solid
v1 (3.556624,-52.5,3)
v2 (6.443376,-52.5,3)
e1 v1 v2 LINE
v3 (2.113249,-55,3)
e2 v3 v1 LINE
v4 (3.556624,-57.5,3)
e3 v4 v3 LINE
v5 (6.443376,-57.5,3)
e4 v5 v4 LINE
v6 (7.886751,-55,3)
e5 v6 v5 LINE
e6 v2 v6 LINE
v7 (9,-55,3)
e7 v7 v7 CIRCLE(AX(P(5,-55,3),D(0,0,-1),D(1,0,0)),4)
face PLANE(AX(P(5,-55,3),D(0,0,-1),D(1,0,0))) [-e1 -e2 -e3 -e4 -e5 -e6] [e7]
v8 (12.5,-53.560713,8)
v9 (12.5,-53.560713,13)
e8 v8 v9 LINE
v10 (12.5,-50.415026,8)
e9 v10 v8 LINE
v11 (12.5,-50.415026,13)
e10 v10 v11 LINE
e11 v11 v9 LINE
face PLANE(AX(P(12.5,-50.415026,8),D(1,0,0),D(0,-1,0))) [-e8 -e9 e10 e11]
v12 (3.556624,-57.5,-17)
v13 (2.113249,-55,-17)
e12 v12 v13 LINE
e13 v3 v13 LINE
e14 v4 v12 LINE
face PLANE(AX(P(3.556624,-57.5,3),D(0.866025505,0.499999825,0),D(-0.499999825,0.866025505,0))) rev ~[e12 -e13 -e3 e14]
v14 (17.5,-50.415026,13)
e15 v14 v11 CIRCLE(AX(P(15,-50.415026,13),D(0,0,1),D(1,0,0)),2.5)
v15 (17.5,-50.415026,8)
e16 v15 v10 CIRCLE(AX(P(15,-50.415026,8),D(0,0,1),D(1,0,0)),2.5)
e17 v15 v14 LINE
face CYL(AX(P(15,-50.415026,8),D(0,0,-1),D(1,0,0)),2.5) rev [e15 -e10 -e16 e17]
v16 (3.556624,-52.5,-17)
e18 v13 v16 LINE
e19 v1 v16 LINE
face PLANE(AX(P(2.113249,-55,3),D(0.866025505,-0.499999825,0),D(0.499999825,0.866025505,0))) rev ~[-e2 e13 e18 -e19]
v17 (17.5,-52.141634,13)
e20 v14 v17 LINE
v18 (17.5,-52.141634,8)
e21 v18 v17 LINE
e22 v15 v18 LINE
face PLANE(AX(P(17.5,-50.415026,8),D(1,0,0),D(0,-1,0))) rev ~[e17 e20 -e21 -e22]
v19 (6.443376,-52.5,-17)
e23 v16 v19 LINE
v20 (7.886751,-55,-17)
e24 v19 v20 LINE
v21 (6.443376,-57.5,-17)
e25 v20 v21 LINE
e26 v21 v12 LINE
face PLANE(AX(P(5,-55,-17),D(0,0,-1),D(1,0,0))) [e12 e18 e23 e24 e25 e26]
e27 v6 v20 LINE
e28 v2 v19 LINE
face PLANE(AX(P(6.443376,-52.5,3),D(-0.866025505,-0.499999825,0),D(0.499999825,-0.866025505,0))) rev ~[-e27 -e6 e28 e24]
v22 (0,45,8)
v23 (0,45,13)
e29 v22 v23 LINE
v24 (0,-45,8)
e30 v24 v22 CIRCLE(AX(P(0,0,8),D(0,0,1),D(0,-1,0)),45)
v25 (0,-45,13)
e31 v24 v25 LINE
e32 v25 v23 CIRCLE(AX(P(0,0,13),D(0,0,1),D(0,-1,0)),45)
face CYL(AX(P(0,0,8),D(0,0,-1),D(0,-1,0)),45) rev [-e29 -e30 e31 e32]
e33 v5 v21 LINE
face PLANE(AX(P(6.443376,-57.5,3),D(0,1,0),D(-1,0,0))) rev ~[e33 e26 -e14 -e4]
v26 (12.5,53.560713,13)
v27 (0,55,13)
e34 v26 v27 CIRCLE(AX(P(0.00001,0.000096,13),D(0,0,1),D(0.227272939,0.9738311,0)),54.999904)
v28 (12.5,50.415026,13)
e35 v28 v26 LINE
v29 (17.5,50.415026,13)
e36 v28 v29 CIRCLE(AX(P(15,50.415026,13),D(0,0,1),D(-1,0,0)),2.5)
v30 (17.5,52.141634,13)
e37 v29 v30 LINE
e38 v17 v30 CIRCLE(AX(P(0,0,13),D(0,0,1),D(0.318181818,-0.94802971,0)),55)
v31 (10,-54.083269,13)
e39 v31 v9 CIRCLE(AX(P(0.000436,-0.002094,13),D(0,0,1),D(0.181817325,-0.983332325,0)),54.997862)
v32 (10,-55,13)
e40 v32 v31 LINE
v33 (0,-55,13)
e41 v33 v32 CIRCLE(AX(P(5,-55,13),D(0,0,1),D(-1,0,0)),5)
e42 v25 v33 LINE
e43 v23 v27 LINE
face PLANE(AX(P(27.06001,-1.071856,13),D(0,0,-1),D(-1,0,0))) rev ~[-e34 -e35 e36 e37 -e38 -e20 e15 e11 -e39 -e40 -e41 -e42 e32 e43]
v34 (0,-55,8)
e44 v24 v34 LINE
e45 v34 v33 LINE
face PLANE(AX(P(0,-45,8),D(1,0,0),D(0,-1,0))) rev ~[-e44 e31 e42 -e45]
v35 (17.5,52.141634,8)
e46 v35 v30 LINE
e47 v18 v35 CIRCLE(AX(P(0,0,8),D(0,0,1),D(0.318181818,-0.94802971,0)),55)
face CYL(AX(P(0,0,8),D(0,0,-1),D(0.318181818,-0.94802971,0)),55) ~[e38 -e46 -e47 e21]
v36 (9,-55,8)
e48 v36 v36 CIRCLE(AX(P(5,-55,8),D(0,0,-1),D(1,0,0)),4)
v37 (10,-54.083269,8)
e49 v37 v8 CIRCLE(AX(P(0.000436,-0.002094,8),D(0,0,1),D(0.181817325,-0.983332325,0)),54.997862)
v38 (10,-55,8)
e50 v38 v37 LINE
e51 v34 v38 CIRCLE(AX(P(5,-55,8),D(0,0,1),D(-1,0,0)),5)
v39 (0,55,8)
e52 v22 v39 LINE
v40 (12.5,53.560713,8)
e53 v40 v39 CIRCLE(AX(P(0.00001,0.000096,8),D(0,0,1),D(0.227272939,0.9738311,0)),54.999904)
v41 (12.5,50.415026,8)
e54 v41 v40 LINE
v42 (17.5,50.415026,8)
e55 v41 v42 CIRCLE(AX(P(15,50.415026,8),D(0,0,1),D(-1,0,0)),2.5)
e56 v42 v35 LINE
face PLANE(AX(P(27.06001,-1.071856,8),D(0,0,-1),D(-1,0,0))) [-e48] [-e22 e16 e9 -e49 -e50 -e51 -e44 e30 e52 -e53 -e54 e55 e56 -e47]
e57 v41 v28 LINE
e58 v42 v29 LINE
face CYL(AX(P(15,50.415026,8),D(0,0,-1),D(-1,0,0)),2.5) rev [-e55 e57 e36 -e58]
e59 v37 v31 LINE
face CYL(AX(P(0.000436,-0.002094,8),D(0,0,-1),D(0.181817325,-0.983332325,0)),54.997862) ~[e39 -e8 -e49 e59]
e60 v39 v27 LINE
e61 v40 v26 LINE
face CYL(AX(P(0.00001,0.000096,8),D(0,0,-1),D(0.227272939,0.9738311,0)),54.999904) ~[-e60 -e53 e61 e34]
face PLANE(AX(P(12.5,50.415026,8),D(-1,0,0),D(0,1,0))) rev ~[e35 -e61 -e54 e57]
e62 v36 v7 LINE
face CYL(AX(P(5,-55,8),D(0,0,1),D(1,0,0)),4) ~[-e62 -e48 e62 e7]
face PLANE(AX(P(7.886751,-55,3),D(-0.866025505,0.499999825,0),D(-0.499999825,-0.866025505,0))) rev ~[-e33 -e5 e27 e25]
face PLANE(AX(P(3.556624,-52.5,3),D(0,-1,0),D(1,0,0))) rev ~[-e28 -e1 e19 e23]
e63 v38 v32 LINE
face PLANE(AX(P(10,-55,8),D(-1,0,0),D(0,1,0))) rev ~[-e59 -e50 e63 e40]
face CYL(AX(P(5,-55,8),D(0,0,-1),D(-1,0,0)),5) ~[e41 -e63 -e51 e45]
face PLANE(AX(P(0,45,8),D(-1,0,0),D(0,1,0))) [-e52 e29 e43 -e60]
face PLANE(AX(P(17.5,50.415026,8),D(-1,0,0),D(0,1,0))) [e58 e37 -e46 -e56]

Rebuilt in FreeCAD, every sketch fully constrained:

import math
import FreeCAD as App
import Part
import Sketcher
from FreeCAD import Vector
Q = App.Units.Quantity

doc = App.newDocument("Part")
params = doc.addObject("Spreadsheet::Sheet", "Params")
for row, (alias, value) in enumerate([
    ("sketch1_radius", "45 mm"),
    ("sketch1_radius2", "5 mm"),
    ("sketch1_radius3", "55 mm"),
    ("sketch1_radius4", "2.5 mm"),
    ("sketch1_height", "10 mm"),
    ("pad1_length", "5 mm"),
    ("sketch2_diameter", "8 mm"),
    ("pad2_length", "5 mm"),
    ("pad3_length", "20 mm"),
], start=1):
    params.set(f"A{row}", alias)
    params.set(f"B{row}", "=" + value)
    params.setAlias(f"B{row}", alias)

body = doc.addObject("PartDesign::Body", "Body")

sketch1 = doc.addObject("Sketcher::SketchObject", "Sketch")
body.addObject(sketch1)
sketch1.AttachmentSupport = (doc.XY_Plane, [""])
sketch1.MapMode = "FlatFace"
sketch1.addGeometry(Part.ArcOfCircle(Part.Circle(Vector(0, 0, 0), Vector(0, 0, 1), 45), math.radians(-90), math.radians(90)), False)
sketch1.addGeometry(Part.LineSegment(Vector(0, -45, 0), Vector(0, -55, 0)), False)
sketch1.addGeometry(Part.ArcOfCircle(Part.Circle(Vector(5, -55, 0), Vector(0, 0, 1), 5), math.radians(180), math.radians(360)), False)
sketch1.addGeometry(Part.LineSegment(Vector(10, -55, 0), Vector(10, -54.1, 0)), False)
sketch1.addGeometry(Part.ArcOfCircle(Part.Circle(Vector(0, 0, 0), Vector(0, 0, 1), 55), math.radians(-79.52), math.radians(-76.86)), False)
sketch1.addGeometry(Part.LineSegment(Vector(12.5, -53.6, 0), Vector(12.5, -50.4, 0)), False)
sketch1.addGeometry(Part.ArcOfCircle(Part.Circle(Vector(15, -50.4, 0), Vector(0, 0, 1), 2.5), math.radians(0), math.radians(180)), False)
sketch1.addGeometry(Part.LineSegment(Vector(17.5, -50.4, 0), Vector(17.5, -52.1, 0)), False)
sketch1.addGeometry(Part.ArcOfCircle(Part.Circle(Vector(0, 0, 0), Vector(0, 0, 1), 55), math.radians(-71), math.radians(71)), False)
sketch1.addGeometry(Part.LineSegment(Vector(17.5, 52.1, 0), Vector(17.5, 50.4, 0)), False)
sketch1.addGeometry(Part.ArcOfCircle(Part.Circle(Vector(15, 50.4, 0), Vector(0, 0, 1), 2.5), math.radians(180), math.radians(360)), False)
sketch1.addGeometry(Part.LineSegment(Vector(12.5, 50.4, 0), Vector(12.5, 53.6, 0)), False)
sketch1.addGeometry(Part.ArcOfCircle(Part.Circle(Vector(0, 0, 0), Vector(0, 0, 1), 55), math.radians(76.86), math.radians(90)), False)
sketch1.addGeometry(Part.LineSegment(Vector(0, 55, 0), Vector(0, 45, 0)), False)
sketch1.addConstraint(Sketcher.Constraint("Coincident", 0, 1, 1, 1))
sketch1.addConstraint(Sketcher.Constraint("Tangent", 1, 2, 2, 1))
sketch1.addConstraint(Sketcher.Constraint("Tangent", 2, 2, 3, 1))
sketch1.addConstraint(Sketcher.Constraint("Coincident", 3, 2, 4, 1))
sketch1.addConstraint(Sketcher.Constraint("Coincident", 4, 2, 5, 1))
sketch1.addConstraint(Sketcher.Constraint("Tangent", 5, 2, 6, 2))
sketch1.addConstraint(Sketcher.Constraint("Tangent", 6, 1, 7, 1))
sketch1.addConstraint(Sketcher.Constraint("Coincident", 7, 2, 8, 1))
sketch1.addConstraint(Sketcher.Constraint("Coincident", 8, 2, 9, 1))
sketch1.addConstraint(Sketcher.Constraint("Tangent", 9, 2, 10, 2))
sketch1.addConstraint(Sketcher.Constraint("Tangent", 10, 1, 11, 1))
sketch1.addConstraint(Sketcher.Constraint("Coincident", 11, 2, 12, 1))
sketch1.addConstraint(Sketcher.Constraint("Coincident", 12, 2, 13, 1))
sketch1.addConstraint(Sketcher.Constraint("Coincident", 13, 2, 0, 2))
sketch1.addConstraint(Sketcher.Constraint("Vertical", 1))
sketch1.addConstraint(Sketcher.Constraint("Vertical", 3))
sketch1.addConstraint(Sketcher.Constraint("Vertical", 5))
sketch1.addConstraint(Sketcher.Constraint("Vertical", 7))
sketch1.addConstraint(Sketcher.Constraint("Vertical", 9))
sketch1.addConstraint(Sketcher.Constraint("Vertical", 11))
sketch1.addConstraint(Sketcher.Constraint("Vertical", 13))
sketch1.addConstraint(Sketcher.Constraint("Coincident", 0, 3, -1, 1))
sketch1.addConstraint(Sketcher.Constraint("Coincident", 8, 3, -1, 1))
sketch1.addConstraint(Sketcher.Constraint("Equal", 6, 10))
sketch1.addConstraint(Sketcher.Constraint("Symmetric", 1, 2, 12, 2, -1, 1))
sketch1.addConstraint(Sketcher.Constraint("Symmetric", 6, 3, 10, 3, -1))
sketch1.addConstraint(Sketcher.Constraint("PointOnObject", 0, 1, -2))
sketch1.addConstraint(Sketcher.Constraint("Equal", 5, 11))
sketch1.addConstraint(Sketcher.Constraint("Radius", 0, Q("45 mm")))
sketch1.addConstraint(Sketcher.Constraint("Radius", 2, Q("5 mm")))
sketch1.addConstraint(Sketcher.Constraint("Radius", 8, Q("55 mm")))
sketch1.addConstraint(Sketcher.Constraint("Radius", 6, Q("2.5 mm")))
sketch1.addConstraint(Sketcher.Constraint("DistanceY", 1, 2, 1, 1, Q("10 mm")))
sketch1.addConstraint(Sketcher.Constraint("DistanceX", -1, 1, 6, 3, Q("15 mm")))
sketch1.addConstraint(Sketcher.Constraint("Radius", 4, Q("54.997862 mm")))
sketch1.addConstraint(Sketcher.Constraint("Radius", 12, Q("54.999904 mm")))
sketch1.addConstraint(Sketcher.Constraint("DistanceY", 3, 1, 3, 2, Q("0.916731 mm")))
sketch1.addConstraint(Sketcher.Constraint("DistanceY", 7, 2, 7, 1, Q("1.726608 mm")))
sketch1.addConstraint(Sketcher.Constraint("DistanceY", 5, 1, 5, 2, Q("3.145687 mm")))
sketch1.setExpression("Constraints[28]", "Params.sketch1_radius")
sketch1.setExpression("Constraints[29]", "Params.sketch1_radius2")
sketch1.setExpression("Constraints[30]", "Params.sketch1_radius3")
sketch1.setExpression("Constraints[31]", "Params.sketch1_radius4")
sketch1.setExpression("Constraints[32]", "Params.sketch1_height")
pad1 = doc.addObject("PartDesign::Pad", "Pad")
body.addObject(pad1)
pad1.Profile = sketch1
pad1.setExpression("Length", "Params.pad1_length")

sketch2 = doc.addObject("Sketcher::SketchObject", "Sketch001")
body.addObject(sketch2)
sketch2.AttachmentSupport = (doc.XY_Plane, [""])
sketch2.MapMode = "FlatFace"
sketch2.addGeometry(Part.Circle(Vector(5, -55, 0), Vector(0, 0, 1), 4), False)
sketch2.addConstraint(Sketcher.Constraint("Diameter", 0, Q("8 mm")))
sketch2.addConstraint(Sketcher.Constraint("DistanceX", -1, 1, 0, 3, Q("5 mm")))
sketch2.addConstraint(Sketcher.Constraint("DistanceY", 0, 3, -1, 1, Q("55 mm")))
sketch2.setExpression("Constraints[0]", "Params.sketch2_diameter")
pad2 = doc.addObject("PartDesign::Pad", "Pad001")
body.addObject(pad2)
pad2.Profile = sketch2
pad2.setExpression("Length", "Params.pad2_length")
pad2.Reversed = True

sketch3 = doc.addObject("Sketcher::SketchObject", "Sketch002")
body.addObject(sketch3)
sketch3.AttachmentSupport = (doc.XY_Plane, [""])
sketch3.MapMode = "FlatFace"
sketch3.AttachmentOffset = App.Placement(Vector(0, 0, -5), App.Rotation())
sketch3.addGeometry(Part.LineSegment(Vector(2.1, -55, 0), Vector(3.6, -52.5, 0)), False)
sketch3.addGeometry(Part.LineSegment(Vector(3.6, -52.5, 0), Vector(6.4, -52.5, 0)), False)
sketch3.addGeometry(Part.LineSegment(Vector(6.4, -52.5, 0), Vector(7.9, -55, 0)), False)
sketch3.addGeometry(Part.LineSegment(Vector(7.9, -55, 0), Vector(6.4, -57.5, 0)), False)
sketch3.addGeometry(Part.LineSegment(Vector(6.4, -57.5, 0), Vector(3.6, -57.5, 0)), False)
sketch3.addGeometry(Part.LineSegment(Vector(3.6, -57.5, 0), Vector(2.1, -55, 0)), False)
sketch3.addConstraint(Sketcher.Constraint("Coincident", 0, 2, 1, 1))
sketch3.addConstraint(Sketcher.Constraint("Coincident", 1, 2, 2, 1))
sketch3.addConstraint(Sketcher.Constraint("Coincident", 2, 2, 3, 1))
sketch3.addConstraint(Sketcher.Constraint("Coincident", 3, 2, 4, 1))
sketch3.addConstraint(Sketcher.Constraint("Coincident", 4, 2, 5, 1))
sketch3.addConstraint(Sketcher.Constraint("Coincident", 5, 2, 0, 1))
sketch3.addConstraint(Sketcher.Constraint("Horizontal", 1))
sketch3.addConstraint(Sketcher.Constraint("Horizontal", 4))
sketch3.addConstraint(Sketcher.Constraint("Parallel", 0, 3))
sketch3.addConstraint(Sketcher.Constraint("Parallel", 2, 5))
sketch3.addConstraint(Sketcher.Constraint("Horizontal", 2, 2, 5, 2))
sketch3.addConstraint(Sketcher.Constraint("Vertical", 1, 2, 3, 2))
sketch3.addConstraint(Sketcher.Constraint("Vertical", 0, 2, 4, 2))
sketch3.addConstraint(Sketcher.Constraint("Angle", 0, Q("60.000012 deg")))
sketch3.addConstraint(Sketcher.Constraint("DistanceY", 2, 2, -1, 1, Q("55 mm")))
sketch3.addConstraint(Sketcher.Constraint("DistanceY", 3, 2, 1, 2, Q("5 mm")))
sketch3.addConstraint(Sketcher.Constraint("DistanceX", 1, 1, 1, 2, Q("2.886752 mm")))
sketch3.addConstraint(Sketcher.Constraint("DistanceX", -1, 1, 2, 2, Q("7.886751 mm")))
pad3 = doc.addObject("PartDesign::Pad", "Pad002")
body.addObject(pad3)
pad3.Profile = sketch3
pad3.setExpression("Length", "Params.pad3_length")
pad3.Reversed = True
body2 = doc.addObject("PartDesign::Body", "Body001")
doc.recompute()

body.Placement = App.Placement(Vector(0, 0, 8), App.Rotation(Vector(0, 0, 1), 0))
boolean = doc.addObject("PartDesign::Boolean", "Boolean")
body2.addObject(boolean)
boolean.Type = "Fuse"
boolean.addObjects([body])

doc.recompute()
